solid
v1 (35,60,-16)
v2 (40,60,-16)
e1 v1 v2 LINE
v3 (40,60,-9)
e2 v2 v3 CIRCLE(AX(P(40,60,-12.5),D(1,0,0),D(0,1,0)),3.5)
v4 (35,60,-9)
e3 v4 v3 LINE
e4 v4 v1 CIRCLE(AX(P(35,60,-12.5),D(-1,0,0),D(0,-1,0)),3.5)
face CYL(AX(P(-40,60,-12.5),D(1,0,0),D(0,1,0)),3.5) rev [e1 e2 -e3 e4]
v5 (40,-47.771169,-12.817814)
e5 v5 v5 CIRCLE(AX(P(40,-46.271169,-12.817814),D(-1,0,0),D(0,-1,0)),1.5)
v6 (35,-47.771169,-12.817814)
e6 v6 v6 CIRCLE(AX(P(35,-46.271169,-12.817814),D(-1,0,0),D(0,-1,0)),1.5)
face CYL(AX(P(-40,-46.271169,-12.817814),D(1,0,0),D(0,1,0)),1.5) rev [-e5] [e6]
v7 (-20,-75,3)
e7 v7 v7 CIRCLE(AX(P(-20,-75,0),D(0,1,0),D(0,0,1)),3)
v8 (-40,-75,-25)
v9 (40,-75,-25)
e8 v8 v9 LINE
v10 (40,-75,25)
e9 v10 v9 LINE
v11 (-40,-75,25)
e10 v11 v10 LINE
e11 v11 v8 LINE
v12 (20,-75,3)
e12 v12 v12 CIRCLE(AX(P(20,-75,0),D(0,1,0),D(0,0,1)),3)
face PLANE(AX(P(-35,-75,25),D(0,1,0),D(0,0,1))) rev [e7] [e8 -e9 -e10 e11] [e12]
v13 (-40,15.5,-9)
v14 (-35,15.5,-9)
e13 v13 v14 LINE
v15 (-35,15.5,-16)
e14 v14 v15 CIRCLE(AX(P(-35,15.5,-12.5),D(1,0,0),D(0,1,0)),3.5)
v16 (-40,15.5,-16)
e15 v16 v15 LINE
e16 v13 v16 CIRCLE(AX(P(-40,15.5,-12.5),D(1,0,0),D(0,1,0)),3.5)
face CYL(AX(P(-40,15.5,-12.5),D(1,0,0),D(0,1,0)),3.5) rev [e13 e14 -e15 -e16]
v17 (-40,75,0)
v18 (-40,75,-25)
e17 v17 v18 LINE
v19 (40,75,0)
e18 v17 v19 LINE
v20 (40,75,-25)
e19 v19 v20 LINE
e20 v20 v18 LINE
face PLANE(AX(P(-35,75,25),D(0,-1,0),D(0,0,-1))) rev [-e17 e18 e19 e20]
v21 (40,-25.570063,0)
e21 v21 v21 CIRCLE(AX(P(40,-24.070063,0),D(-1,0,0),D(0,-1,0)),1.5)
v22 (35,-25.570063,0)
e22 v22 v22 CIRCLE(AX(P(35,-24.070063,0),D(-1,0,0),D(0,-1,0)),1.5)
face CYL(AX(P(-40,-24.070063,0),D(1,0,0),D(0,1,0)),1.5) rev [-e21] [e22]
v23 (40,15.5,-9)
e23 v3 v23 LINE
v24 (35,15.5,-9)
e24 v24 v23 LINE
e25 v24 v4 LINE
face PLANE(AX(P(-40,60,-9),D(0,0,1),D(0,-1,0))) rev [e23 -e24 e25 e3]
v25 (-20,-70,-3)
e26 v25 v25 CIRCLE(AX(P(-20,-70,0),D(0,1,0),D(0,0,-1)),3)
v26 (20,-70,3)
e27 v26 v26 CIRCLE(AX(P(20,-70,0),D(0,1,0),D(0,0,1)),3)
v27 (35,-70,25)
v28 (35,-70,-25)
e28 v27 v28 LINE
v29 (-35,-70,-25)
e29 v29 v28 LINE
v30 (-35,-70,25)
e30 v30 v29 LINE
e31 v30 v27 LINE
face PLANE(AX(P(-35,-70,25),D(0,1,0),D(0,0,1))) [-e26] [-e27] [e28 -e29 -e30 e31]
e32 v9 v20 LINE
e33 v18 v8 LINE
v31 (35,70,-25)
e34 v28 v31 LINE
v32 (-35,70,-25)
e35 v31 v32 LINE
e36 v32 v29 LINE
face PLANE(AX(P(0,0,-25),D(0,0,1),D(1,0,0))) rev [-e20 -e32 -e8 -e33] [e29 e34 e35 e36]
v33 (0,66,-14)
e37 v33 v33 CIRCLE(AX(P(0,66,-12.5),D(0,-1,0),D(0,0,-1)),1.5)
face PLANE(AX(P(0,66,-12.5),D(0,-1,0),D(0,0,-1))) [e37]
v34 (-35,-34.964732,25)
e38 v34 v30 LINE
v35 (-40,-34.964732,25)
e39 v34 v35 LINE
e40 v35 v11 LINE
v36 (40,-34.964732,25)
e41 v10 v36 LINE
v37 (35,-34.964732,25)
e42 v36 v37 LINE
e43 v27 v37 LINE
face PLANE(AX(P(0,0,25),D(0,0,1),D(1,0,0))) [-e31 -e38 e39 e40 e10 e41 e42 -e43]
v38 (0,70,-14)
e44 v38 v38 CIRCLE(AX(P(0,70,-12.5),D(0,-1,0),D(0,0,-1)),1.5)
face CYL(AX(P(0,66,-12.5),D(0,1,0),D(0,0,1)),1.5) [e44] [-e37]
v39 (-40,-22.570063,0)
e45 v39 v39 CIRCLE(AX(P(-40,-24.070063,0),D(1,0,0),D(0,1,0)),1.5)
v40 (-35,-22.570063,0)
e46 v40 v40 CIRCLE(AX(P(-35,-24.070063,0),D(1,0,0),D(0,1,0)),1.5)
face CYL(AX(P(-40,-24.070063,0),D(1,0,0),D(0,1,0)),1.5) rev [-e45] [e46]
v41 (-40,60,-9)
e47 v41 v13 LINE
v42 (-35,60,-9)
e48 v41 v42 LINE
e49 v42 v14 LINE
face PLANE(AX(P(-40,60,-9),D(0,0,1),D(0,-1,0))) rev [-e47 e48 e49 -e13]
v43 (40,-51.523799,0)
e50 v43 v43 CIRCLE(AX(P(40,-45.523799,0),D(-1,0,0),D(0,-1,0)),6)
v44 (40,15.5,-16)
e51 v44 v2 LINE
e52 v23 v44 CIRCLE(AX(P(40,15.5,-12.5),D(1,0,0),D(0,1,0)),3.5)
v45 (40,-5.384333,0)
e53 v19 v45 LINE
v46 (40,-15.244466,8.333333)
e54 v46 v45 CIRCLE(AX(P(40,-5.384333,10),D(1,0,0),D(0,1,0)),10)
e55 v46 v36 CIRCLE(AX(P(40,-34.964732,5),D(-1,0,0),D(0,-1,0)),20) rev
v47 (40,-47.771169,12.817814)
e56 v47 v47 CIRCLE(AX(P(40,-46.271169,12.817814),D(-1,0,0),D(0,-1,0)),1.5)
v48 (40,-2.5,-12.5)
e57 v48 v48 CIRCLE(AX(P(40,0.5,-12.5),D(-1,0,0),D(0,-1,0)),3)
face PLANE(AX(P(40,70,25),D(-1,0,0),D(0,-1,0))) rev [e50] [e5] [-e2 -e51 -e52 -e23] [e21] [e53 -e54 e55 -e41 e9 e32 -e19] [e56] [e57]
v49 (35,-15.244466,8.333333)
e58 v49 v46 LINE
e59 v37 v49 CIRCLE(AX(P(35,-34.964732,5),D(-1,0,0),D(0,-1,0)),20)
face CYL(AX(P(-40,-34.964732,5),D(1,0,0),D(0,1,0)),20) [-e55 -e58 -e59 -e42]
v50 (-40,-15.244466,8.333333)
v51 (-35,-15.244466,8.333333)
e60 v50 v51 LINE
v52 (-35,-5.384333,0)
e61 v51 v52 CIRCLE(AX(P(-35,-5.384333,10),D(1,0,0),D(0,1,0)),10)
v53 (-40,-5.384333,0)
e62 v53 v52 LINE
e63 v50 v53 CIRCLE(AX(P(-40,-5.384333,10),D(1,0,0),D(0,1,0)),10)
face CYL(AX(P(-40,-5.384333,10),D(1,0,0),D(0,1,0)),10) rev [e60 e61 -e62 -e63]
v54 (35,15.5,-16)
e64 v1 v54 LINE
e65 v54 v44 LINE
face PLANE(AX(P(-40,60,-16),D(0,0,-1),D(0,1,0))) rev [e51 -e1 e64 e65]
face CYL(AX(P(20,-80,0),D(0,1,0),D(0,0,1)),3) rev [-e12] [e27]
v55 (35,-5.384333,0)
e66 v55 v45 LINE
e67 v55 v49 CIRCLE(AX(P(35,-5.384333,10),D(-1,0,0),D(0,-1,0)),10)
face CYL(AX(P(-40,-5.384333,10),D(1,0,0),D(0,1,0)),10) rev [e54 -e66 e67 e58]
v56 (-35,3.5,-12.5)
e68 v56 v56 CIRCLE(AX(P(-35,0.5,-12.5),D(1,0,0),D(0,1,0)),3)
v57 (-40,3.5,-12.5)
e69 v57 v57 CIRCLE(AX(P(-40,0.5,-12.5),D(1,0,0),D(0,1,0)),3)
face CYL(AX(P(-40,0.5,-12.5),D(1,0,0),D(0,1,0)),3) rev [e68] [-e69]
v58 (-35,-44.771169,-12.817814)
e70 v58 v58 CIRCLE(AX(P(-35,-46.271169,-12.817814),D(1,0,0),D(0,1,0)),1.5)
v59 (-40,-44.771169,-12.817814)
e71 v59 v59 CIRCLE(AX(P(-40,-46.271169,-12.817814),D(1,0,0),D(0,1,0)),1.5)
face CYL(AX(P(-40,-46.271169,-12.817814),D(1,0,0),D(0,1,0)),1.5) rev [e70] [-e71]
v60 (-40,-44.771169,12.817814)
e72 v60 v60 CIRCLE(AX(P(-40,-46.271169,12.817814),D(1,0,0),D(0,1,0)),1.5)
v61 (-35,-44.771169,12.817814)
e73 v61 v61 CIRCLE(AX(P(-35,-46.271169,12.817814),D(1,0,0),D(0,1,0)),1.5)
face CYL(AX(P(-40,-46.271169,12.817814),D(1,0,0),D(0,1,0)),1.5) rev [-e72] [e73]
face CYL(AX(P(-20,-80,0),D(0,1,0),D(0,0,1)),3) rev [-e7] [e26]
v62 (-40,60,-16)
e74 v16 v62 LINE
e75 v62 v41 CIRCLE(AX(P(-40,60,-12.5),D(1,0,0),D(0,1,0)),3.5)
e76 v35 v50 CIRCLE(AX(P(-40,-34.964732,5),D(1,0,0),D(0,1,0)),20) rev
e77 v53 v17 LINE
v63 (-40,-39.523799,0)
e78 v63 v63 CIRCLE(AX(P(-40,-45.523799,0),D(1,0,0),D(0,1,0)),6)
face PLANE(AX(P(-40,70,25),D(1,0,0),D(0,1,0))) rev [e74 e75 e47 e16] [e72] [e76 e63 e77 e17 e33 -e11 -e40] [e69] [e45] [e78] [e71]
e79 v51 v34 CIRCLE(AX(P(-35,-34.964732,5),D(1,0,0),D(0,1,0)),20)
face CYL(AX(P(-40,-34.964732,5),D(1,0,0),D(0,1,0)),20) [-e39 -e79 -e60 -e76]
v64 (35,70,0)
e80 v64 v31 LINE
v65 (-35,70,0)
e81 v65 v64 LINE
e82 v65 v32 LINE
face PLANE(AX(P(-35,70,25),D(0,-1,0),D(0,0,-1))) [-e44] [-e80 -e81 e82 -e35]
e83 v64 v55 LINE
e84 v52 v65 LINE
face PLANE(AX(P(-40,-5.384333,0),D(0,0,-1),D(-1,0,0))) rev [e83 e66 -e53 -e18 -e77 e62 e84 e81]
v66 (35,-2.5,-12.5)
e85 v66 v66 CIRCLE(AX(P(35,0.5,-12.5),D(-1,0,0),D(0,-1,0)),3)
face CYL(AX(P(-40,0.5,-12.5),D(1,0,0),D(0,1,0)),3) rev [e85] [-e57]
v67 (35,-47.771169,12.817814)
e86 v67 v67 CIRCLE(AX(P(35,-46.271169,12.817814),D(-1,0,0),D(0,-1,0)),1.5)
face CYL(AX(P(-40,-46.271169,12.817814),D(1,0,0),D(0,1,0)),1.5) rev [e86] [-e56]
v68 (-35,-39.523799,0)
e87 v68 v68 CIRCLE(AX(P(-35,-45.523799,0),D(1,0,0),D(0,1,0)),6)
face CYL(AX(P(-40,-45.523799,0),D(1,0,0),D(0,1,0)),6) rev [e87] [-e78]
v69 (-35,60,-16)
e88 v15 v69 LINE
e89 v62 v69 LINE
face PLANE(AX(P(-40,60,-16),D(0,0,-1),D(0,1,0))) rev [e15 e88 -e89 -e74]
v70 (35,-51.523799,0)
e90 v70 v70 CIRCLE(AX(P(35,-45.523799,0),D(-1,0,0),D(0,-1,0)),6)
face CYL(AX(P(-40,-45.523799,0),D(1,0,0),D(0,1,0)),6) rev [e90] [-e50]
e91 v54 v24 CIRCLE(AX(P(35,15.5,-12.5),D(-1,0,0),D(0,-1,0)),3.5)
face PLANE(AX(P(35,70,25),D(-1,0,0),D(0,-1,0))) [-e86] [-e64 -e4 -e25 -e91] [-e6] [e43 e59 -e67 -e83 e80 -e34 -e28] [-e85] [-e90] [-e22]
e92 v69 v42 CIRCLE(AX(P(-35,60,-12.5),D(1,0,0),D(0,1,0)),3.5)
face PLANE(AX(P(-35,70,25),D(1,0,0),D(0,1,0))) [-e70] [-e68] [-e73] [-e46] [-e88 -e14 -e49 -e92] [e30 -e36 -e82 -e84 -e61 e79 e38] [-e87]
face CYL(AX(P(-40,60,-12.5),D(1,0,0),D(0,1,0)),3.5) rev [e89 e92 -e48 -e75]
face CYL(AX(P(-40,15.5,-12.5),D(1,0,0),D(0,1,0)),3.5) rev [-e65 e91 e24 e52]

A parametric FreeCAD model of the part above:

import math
import FreeCAD as App
import Part
import Sketcher

V = App.Vector
Q = App.Units.Quantity


def edges_at(feature, points):
    """Names of the edges that pass closest to the given points."""
    edges = feature.Shape.Edges
    near = lambda p: min(range(len(edges)), key=lambda i: edges[i].distToShape(Part.Vertex(*p))[0])
    return sorted({f"Edge{near(p) + 1}" for p in points})

doc = App.newDocument("Part")
params = doc.addObject("Spreadsheet::Sheet", "Params")
for row, (alias, value) in enumerate([
    ("sketch1_width", "80 mm"),
    ("sketch1_width2", "70 mm"),
    ("sketch1_height", "150 mm"),
    ("sketch1_height2", "140 mm"),
    ("pad1_length", "50 mm"),
    ("sketch2_radius", "10 mm"),
    ("sketch2_height", "15 mm"),
    ("fillet_radius", "20 mm"),
    ("sketch3_diameter", "6 mm"),
    ("sketch3_diameter2", "3 mm"),
    ("sketch3_diameter3", "12 mm"),
    ("sketch3_radius", "3.5 mm"),
    ("sketch3_width", "44.5 mm"),
    ("sketch4_diameter", "3 mm"),
    ("pad2_length", "4 mm"),
    ("sketch5_diameter", "6 mm"),
    ("pocket3_length", "10 mm"),
], start=1):
    params.set(f"A{row}", alias)
    params.set(f"B{row}", "=" + value)
    params.setAlias(f"B{row}", alias)

body = doc.addObject("PartDesign::Body", "Body")

# Sketch on XY plane
sketch1 = doc.addObject("Sketcher::SketchObject", "Sketch")
body.addObject(sketch1)
sketch1.AttachmentSupport = (doc.XY_Plane, [""])
sketch1.MapMode = "FlatFace"
sketch1.addGeometry(Part.LineSegment(V(-40, 75, 0), V(-40, -75, 0)), False)
sketch1.addGeometry(Part.LineSegment(V(-40, -75, 0), V(40, -75, 0)), False)
sketch1.addGeometry(Part.LineSegment(V(40, -75, 0), V(40, 75, 0)), False)
sketch1.addGeometry(Part.LineSegment(V(40, 75, 0), V(-40, 75, 0)), False)
sketch1.addGeometry(Part.LineSegment(V(35, -70, 0), V(-35, -70, 0)), False)
sketch1.addGeometry(Part.LineSegment(V(-35, -70, 0), V(-35, 70, 0)), False)
sketch1.addGeometry(Part.LineSegment(V(-35, 70, 0), V(35, 70, 0)), False)
sketch1.addGeometry(Part.LineSegment(V(35, 70, 0), V(35, -70, 0)), False)
sketch1.addConstraint(Sketcher.Constraint("Coincident", 0, 2, 1, 1))
sketch1.addConstraint(Sketcher.Constraint("Coincident", 1, 2, 2, 1))
sketch1.addConstraint(Sketcher.Constraint("Coincident", 2, 2, 3, 1))
sketch1.addConstraint(Sketcher.Constraint("Coincident", 3, 2, 0, 1))
sketch1.addConstraint(Sketcher.Constraint("Coincident", 4, 2, 5, 1))
sketch1.addConstraint(Sketcher.Constraint("Coincident", 5, 2, 6, 1))
sketch1.addConstraint(Sketcher.Constraint("Coincident", 6, 2, 7, 1))
sketch1.addConstraint(Sketcher.Constraint("Coincident", 7, 2, 4, 1))
sketch1.addConstraint(Sketcher.Constraint("Vertical", 0))
sketch1.addConstraint(Sketcher.Constraint("Horizontal", 1))
sketch1.addConstraint(Sketcher.Constraint("Vertical", 2))
sketch1.addConstraint(Sketcher.Constraint("Horizontal", 3))
sketch1.addConstraint(Sketcher.Constraint("Horizontal", 4))
sketch1.addConstraint(Sketcher.Constraint("Vertical", 5))
sketch1.addConstraint(Sketcher.Constraint("Horizontal", 6))
sketch1.addConstraint(Sketcher.Constraint("Vertical", 7))
sketch1.addConstraint(Sketcher.Constraint("Symmetric", 0, 2, 2, 2, -1, 1))
sketch1.addConstraint(Sketcher.Constraint("Symmetric", 4, 2, 6, 2, -1, 1))
sketch1.addConstraint(Sketcher.Constraint("DistanceX", 1, 1, 1, 2, Q("80 mm")))
sketch1.addConstraint(Sketcher.Constraint("DistanceX", 4, 2, 4, 1, Q("70 mm")))
sketch1.addConstraint(Sketcher.Constraint("DistanceY", 0, 2, 0, 1, Q("150 mm")))
sketch1.addConstraint(Sketcher.Constraint("DistanceY", 5, 1, 5, 2, Q("140 mm")))
sketch1.setExpression("Constraints[18]", "Params.sketch1_width")
sketch1.setExpression("Constraints[19]", "Params.sketch1_width2")
sketch1.setExpression("Constraints[20]", "Params.sketch1_height")
sketch1.setExpression("Constraints[21]", "Params.sketch1_height2")
pad1 = doc.addObject("PartDesign::Pad", "Pad")
body.addObject(pad1)
pad1.Profile = sketch1
pad1.setExpression("Length", "Params.pad1_length")
pad1.Midplane = True

# Sketch on YZ plane
sketch2 = doc.addObject("Sketcher::SketchObject", "Sketch001")
body.addObject(sketch2)
sketch2.AttachmentSupport = (doc.YZ_Plane, [""])
sketch2.MapMode = "FlatFace"
sketch2.AttachmentOffset = App.Placement(V(0, 0, 40), App.Rotation())
sketch2.addGeometry(Part.LineSegment(V(-15.384333, 25, 0), V(-15.384333, 10, 0)), False)
sketch2.addGeometry(Part.ArcOfCircle(Part.Circle(V(-5.384333, 10, 0), V(0, 0, 1), 10), math.radians(180), math.radians(270)), False)
sketch2.addGeometry(Part.LineSegment(V(-5.384333, 0, 0), V(75, 0, 0)), False)
sketch2.addGeometry(Part.LineSegment(V(75, 0, 0), V(75, 25, 0)), False)
sketch2.addGeometry(Part.LineSegment(V(75, 25, 0), V(-15.384333, 25, 0)), False)
sketch2.addConstraint(Sketcher.Constraint("Tangent", 0, 2, 1, 1))
sketch2.addConstraint(Sketcher.Constraint("Tangent", 1, 2, 2, 1))
sketch2.addConstraint(Sketcher.Constraint("Coincident", 2, 2, 3, 1))
sketch2.addConstraint(Sketcher.Constraint("Coincident", 3, 2, 4, 1))
sketch2.addConstraint(Sketcher.Constraint("Coincident", 4, 2, 0, 1))
sketch2.addConstraint(Sketcher.Constraint("Vertical", 0))
sketch2.addConstraint(Sketcher.Constraint("Horizontal", 2))
sketch2.addConstraint(Sketcher.Constraint("Vertical", 3))
sketch2.addConstraint(Sketcher.Constraint("Horizontal", 4))
sketch2.addConstraint(Sketcher.Constraint("PointOnObject", 1, 2, -1))
sketch2.addConstraint(Sketcher.Constraint("Radius", 1, Q("10 mm")))
sketch2.addConstraint(Sketcher.Constraint("DistanceY", 0, 2, 0, 1, Q("15 mm")))
sketch2.addConstraint(Sketcher.Constraint("DistanceX", -1, 1, 2, 2, Q("75 mm")))
sketch2.addConstraint(Sketcher.Constraint("DistanceX", 2, 1, 2, 2, Q("80.384333 mm")))
sketch2.setExpression("Constraints[10]", "Params.sketch2_radius")
sketch2.setExpression("Constraints[11]", "Params.sketch2_height")
pocket1 = doc.addObject("PartDesign::Pocket", "Pocket")
body.addObject(pocket1)
pocket1.Profile = sketch2
pocket1.Type = "ThroughAll"
pocket1.Midplane = True
doc.recompute()

fillet = doc.addObject("PartDesign::Fillet", "Fillet")
body.addObject(fillet)
fillet.Base = (pocket1, edges_at(pocket1, [(-37.5, -15.384, 25), (37.5, -15.384, 25)]))
fillet.setExpression("Radius", "Params.fillet_radius")

# Sketch on YZ plane
sketch3 = doc.addObject("Sketcher::SketchObject", "Sketch002")
body.addObject(sketch3)
sketch3.AttachmentSupport = (doc.YZ_Plane, [""])
sketch3.MapMode = "FlatFace"
sketch3.AttachmentOffset = App.Placement(V(0, 0, 40), App.Rotation())
sketch3.addGeometry(Part.Circle(V(0.5, -12.5, 0), V(0, 0, 1), 3), False)
sketch3.addGeometry(Part.Circle(V(-24.070063, 0, 0), V(0, 0, 1), 1.5), False)
sketch3.addGeometry(Part.Circle(V(-46.271169, -12.817814, 0), V(0, 0, 1), 1.5), False)
sketch3.addGeometry(Part.Circle(V(-45.523799, 0, 0), V(0, 0, 1), 6), False)
sketch3.addGeometry(Part.Circle(V(-46.271169, 12.817814, 0), V(0, 0, 1), 1.5), False)
sketch3.addGeometry(Part.LineSegment(V(15.5, -16, 0), V(60, -16, 0)), False)
sketch3.addGeometry(Part.ArcOfCircle(Part.Circle(V(60, -12.5, 0), V(0, 0, 1), 3.5), math.radians(-90), math.radians(90)), False)
sketch3.addGeometry(Part.LineSegment(V(60, -9, 0), V(15.5, -9, 0)), False)
sketch3.addGeometry(Part.ArcOfCircle(Part.Circle(V(15.5, -12.5, 0), V(0, 0, 1), 3.5), math.radians(90), math.radians(270)), False)
sketch3.addConstraint(Sketcher.Constraint("Tangent", 5, 2, 6, 1))
sketch3.addConstraint(Sketcher.Constraint("Tangent", 6, 2, 7, 1))
sketch3.addConstraint(Sketcher.Constraint("Tangent", 7, 2, 8, 1))
sketch3.addConstraint(Sketcher.Constraint("Tangent", 8, 2, 5, 1))
sketch3.addConstraint(Sketcher.Constraint("Horizontal", 5))
sketch3.addConstraint(Sketcher.Constraint("Horizontal", 7))
sketch3.addConstraint(Sketcher.Constraint("Equal", 1, 2))
sketch3.addConstraint(Sketcher.Constraint("Equal", 2, 4))
sketch3.addConstraint(Sketcher.Constraint("Symmetric", 2, 3, 4, 3, -1))
sketch3.addConstraint(Sketcher.Constraint("PointOnObject", 1, 3, -1))
sketch3.addConstraint(Sketcher.Constraint("PointOnObject", 3, 3, -1))
sketch3.addConstraint(Sketcher.Constraint("Horizontal", 0, 3, 6, 3))
sketch3.addConstraint(Sketcher.Constraint("Diameter", 0, Q("6 mm")))
sketch3.addConstraint(Sketcher.Constraint("Diameter", 1, Q("3 mm")))
sketch3.addConstraint(Sketcher.Constraint("Diameter", 3, Q("12 mm")))
sketch3.addConstraint(Sketcher.Constraint("Radius", 6, Q("3.5 mm")))
sketch3.addConstraint(Sketcher.Constraint("DistanceX", 5, 1, 5, 2, Q("44.5 mm")))
sketch3.addConstraint(Sketcher.Constraint("DistanceX", -1, 1, 6, 3, Q("60 mm")))
sketch3.addConstraint(Sketcher.Constraint("DistanceY", 5, 2, -1, 1, Q("16 mm")))
sketch3.addConstraint(Sketcher.Constraint("DistanceX", 0, 3, 8, 3, Q("15 mm")))
sketch3.addConstraint(Sketcher.Constraint("DistanceX", 3, 3, -1, 1, Q("45.523799 mm")))
sketch3.addConstraint(Sketcher.Constraint("DistanceX", 2, 3, -1, 1, Q("46.271169 mm")))
sketch3.addConstraint(Sketcher.Constraint("DistanceY", 2, 3, 4, 3, Q("25.635628 mm")))
sketch3.addConstraint(Sketcher.Constraint("DistanceX", 1, 3, -1, 1, Q("24.070063 mm")))
sketch3.setExpression("Constraints[12]", "Params.sketch3_diameter")
sketch3.setExpression("Constraints[13]", "Params.sketch3_diameter2")
sketch3.setExpression("Constraints[14]", "Params.sketch3_diameter3")
sketch3.setExpression("Constraints[15]", "Params.sketch3_radius")
sketch3.setExpression("Constraints[16]", "Params.sketch3_width")
pocket2 = doc.addObject("PartDesign::Pocket", "Pocket001")
body.addObject(pocket2)
pocket2.Profile = sketch3
pocket2.Type = "ThroughAll"
pocket2.Midplane = True

# Sketch on XZ plane
sketch4 = doc.addObject("Sketcher::SketchObject", "Sketch003")
body.addObject(sketch4)
sketch4.AttachmentSupport = (doc.XZ_Plane, [""])
sketch4.MapMode = "FlatFace"
sketch4.AttachmentOffset = App.Placement(V(0, 0, -70), App.Rotation())
sketch4.addGeometry(Part.Circle(V(0, -12.5, 0), V(0, 0, 1), 1.5), False)
sketch4.addConstraint(Sketcher.Constraint("PointOnObject", 0, 3, -2))
sketch4.addConstraint(Sketcher.Constraint("Diameter", 0, Q("3 mm")))
sketch4.addConstraint(Sketcher.Constraint("DistanceY", 0, 3, -1, 1, Q("12.5 mm")))
sketch4.setExpression("Constraints[1]", "Params.sketch4_diameter")
pad2 = doc.addObject("PartDesign::Pad", "Pad001")
body.addObject(pad2)
pad2.Profile = sketch4
pad2.setExpression("Length", "Params.pad2_length")

# Sketch on XZ plane
sketch5 = doc.addObject("Sketcher::SketchObject", "Sketch004")
body.addObject(sketch5)
sketch5.AttachmentSupport = (doc.XZ_Plane, [""])
sketch5.MapMode = "FlatFace"
sketch5.AttachmentOffset = App.Placement(V(0, 0, 70), App.Rotation())
sketch5.addGeometry(Part.Circle(V(20, 0, 0), V(0, 0, 1), 3), False)
sketch5.addGeometry(Part.Circle(V(-20, 0, 0), V(0, 0, 1), 3), False)
sketch5.addConstraint(Sketcher.Constraint("Equal", 0, 1))
sketch5.addConstraint(Sketcher.Constraint("Symmetric", 0, 3, 1, 3, -1, 1))
sketch5.addConstraint(Sketcher.Constraint("PointOnObject", 0, 3, -1))
sketch5.addConstraint(Sketcher.Constraint("Diameter", 0, Q("6 mm")))
sketch5.addConstraint(Sketcher.Constraint("DistanceX", -1, 1, 0, 3, Q("20 mm")))
sketch5.setExpression("Constraints[3]", "Params.sketch5_diameter")
pocket3 = doc.addObject("PartDesign::Pocket", "Pocket002")
body.addObject(pocket3)
pocket3.Profile = sketch5
pocket3.setExpression("Length", "Params.pocket3_length")
pocket3.Reversed = True

doc.recompute()
